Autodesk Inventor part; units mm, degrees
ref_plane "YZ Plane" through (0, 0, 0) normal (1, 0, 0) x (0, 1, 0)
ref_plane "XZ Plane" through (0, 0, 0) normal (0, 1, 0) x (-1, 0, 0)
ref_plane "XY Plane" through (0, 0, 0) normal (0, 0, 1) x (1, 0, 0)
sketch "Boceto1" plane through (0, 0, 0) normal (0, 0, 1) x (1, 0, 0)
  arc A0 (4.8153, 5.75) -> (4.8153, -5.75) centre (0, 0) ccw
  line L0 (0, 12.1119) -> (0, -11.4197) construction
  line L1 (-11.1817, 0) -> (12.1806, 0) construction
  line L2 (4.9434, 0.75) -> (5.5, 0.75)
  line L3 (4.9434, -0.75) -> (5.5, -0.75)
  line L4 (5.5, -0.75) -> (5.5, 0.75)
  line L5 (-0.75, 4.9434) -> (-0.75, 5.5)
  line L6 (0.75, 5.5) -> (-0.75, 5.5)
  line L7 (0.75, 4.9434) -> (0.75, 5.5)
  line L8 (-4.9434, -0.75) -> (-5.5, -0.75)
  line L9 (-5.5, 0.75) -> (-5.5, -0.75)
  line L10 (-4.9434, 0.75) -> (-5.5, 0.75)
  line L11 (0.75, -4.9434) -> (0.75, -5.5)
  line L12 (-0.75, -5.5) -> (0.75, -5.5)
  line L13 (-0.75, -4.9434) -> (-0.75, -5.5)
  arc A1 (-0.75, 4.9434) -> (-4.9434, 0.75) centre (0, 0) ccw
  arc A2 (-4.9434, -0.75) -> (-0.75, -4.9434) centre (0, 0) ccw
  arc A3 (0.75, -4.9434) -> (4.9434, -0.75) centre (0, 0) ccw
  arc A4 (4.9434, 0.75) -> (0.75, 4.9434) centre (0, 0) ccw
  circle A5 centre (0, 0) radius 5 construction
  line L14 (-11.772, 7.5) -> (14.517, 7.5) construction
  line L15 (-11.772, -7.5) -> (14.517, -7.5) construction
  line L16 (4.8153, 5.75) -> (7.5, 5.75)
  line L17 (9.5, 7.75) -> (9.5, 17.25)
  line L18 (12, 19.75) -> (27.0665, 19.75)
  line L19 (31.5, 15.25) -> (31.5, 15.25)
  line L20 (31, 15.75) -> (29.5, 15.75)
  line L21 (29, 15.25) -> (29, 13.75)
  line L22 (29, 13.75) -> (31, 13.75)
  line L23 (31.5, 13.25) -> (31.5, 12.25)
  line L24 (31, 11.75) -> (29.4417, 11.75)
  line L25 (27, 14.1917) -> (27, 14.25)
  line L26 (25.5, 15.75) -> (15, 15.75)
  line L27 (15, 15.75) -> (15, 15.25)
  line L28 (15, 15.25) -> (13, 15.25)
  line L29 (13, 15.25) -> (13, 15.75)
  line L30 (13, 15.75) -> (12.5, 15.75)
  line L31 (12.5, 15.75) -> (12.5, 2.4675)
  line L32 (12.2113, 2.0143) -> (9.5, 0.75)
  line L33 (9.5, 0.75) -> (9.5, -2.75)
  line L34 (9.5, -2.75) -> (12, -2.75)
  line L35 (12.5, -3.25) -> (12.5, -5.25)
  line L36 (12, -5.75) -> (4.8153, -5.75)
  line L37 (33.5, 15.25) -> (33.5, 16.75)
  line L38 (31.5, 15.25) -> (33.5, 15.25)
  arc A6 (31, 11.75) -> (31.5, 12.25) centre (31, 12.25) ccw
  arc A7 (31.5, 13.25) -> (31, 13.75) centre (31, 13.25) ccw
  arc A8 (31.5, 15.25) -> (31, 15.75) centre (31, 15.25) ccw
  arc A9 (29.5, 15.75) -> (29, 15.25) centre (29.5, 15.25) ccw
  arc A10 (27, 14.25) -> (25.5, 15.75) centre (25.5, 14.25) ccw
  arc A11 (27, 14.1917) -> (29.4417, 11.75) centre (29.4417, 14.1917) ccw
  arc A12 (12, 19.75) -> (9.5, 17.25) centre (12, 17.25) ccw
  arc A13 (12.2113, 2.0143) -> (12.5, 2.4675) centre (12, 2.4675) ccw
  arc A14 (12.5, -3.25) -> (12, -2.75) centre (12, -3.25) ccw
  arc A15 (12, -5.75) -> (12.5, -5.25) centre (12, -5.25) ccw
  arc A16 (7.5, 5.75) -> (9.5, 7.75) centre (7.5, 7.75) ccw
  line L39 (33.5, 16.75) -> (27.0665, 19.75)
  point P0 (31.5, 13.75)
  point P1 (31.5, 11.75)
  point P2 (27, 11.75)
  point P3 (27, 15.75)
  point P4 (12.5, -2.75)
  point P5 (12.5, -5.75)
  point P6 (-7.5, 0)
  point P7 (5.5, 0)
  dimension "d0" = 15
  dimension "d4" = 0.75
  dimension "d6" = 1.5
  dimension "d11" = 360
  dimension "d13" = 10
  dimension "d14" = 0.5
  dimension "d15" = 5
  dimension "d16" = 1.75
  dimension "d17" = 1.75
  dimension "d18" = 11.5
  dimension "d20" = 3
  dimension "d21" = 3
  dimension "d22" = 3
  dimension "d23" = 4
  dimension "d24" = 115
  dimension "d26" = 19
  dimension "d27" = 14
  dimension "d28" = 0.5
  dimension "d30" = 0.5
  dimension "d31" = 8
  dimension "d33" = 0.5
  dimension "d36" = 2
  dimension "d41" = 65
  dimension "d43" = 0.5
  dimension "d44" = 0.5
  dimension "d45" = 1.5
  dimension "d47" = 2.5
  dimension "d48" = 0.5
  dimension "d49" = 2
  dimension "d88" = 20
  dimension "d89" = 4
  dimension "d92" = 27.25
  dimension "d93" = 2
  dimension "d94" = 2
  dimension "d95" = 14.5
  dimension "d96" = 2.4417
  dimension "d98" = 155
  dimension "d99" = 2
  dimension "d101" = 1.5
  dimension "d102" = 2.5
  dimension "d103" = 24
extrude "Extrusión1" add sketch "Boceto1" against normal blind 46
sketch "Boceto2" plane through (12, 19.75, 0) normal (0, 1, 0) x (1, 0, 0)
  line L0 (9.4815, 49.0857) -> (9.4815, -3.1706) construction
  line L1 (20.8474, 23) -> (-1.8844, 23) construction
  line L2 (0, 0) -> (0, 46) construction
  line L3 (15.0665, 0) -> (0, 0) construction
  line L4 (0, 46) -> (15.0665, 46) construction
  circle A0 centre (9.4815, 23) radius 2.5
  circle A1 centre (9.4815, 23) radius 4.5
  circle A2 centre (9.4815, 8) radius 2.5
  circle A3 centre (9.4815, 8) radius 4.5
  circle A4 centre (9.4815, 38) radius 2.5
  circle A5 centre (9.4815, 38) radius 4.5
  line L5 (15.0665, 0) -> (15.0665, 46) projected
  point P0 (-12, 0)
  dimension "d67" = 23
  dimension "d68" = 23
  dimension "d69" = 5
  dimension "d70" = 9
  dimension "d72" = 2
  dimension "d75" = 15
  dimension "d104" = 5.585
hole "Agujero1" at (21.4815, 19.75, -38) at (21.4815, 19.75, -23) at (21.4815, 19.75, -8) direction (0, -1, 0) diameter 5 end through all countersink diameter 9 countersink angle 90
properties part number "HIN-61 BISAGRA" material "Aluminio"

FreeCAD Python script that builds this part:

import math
import FreeCAD as App
import Part
import Sketcher

V = App.Vector
Q = App.Units.Quantity

doc = App.newDocument("Part")
body = doc.addObject("PartDesign::Body", "Body")

# Sketch on XY plane
sketch1 = doc.addObject("Sketcher::SketchObject", "Sketch")
body.addObject(sketch1)
sketch1.AttachmentSupport = (doc.XY_Plane, [""])
sketch1.MapMode = "FlatFace"
sketch1.addGeometry([
    Part.LineSegment(V(7.5, 5.75, 0), V(4.8153, 5.75, 0)),  # 0
    Part.ArcOfCircle(Part.Circle(V(0, 0, 0), V(0, 0, 1), 7.499974), math.radians(50.05573), math.radians(309.94427)),  # 1
    Part.LineSegment(V(4.8153, -5.75, 0), V(12, -5.75, 0)),  # 2
    Part.ArcOfCircle(Part.Circle(V(12, -5.25, 0), V(0, 0, 1), 0.5), math.radians(-90), math.radians(0)),  # 3
    Part.LineSegment(V(12.5, -5.25, 0), V(12.5, -3.25, 0)),  # 4
    Part.ArcOfCircle(Part.Circle(V(12, -3.25, 0), V(0, 0, 1), 0.5), math.radians(0), math.radians(90)),  # 5
    Part.LineSegment(V(12, -2.75, 0), V(9.5, -2.75, 0)),  # 6
    Part.LineSegment(V(9.5, -2.75, 0), V(9.5, 0.75, 0)),  # 7
    Part.LineSegment(V(9.5, 0.75, 0), V(12.2113, 2.0143, 0)),  # 8
    Part.ArcOfCircle(Part.Circle(V(12, 2.4675, 0), V(0, 0, 1), 0.500038), math.radians(-65.003181), math.radians(0)),  # 9
    Part.LineSegment(V(12.5, 2.4675, 0), V(12.5, 15.75, 0)),  # 10
    Part.LineSegment(V(12.5, 15.75, 0), V(13, 15.75, 0)),  # 11
    Part.LineSegment(V(13, 15.75, 0), V(13, 15.25, 0)),  # 12
    Part.LineSegment(V(13, 15.25, 0), V(15, 15.25, 0)),  # 13
    Part.LineSegment(V(15, 15.25, 0), V(15, 15.75, 0)),  # 14
    Part.LineSegment(V(15, 15.75, 0), V(25.5, 15.75, 0)),  # 15
    Part.ArcOfCircle(Part.Circle(V(25.5, 14.25, 0), V(0, 0, 1), 1.5), math.radians(0), math.radians(90)),  # 16
    Part.LineSegment(V(27, 14.25, 0), V(27, 14.1917, 0)),  # 17
    Part.ArcOfCircle(Part.Circle(V(29.4417, 14.1917, 0), V(0, 0, 1), 2.4417), math.radians(180), math.radians(270)),  # 18
    Part.LineSegment(V(29.4417, 11.75, 0), V(31, 11.75, 0)),  # 19
    Part.ArcOfCircle(Part.Circle(V(31, 12.25, 0), V(0, 0, 1), 0.5), math.radians(-90), math.radians(0)),  # 20
    Part.LineSegment(V(31.5, 12.25, 0), V(31.5, 13.25, 0)),  # 21
    Part.ArcOfCircle(Part.Circle(V(31, 13.25, 0), V(0, 0, 1), 0.5), math.radians(0), math.radians(90)),  # 22
    Part.LineSegment(V(31, 13.75, 0), V(29, 13.75, 0)),  # 23
    Part.LineSegment(V(29, 13.75, 0), V(29, 15.25, 0)),  # 24
    Part.ArcOfCircle(Part.Circle(V(29.5, 15.25, 0), V(0, 0, 1), 0.5), math.radians(90), math.radians(180)),  # 25
    Part.LineSegment(V(29.5, 15.75, 0), V(31, 15.75, 0)),  # 26
    Part.ArcOfCircle(Part.Circle(V(31, 15.25, 0), V(0, 0, 1), 0.5), math.radians(0), math.radians(90)),  # 27
    Part.LineSegment(V(31.5, 15.25, 0), V(33.5, 15.25, 0)),  # 28
    Part.LineSegment(V(33.5, 15.25, 0), V(33.5, 16.75, 0)),  # 29
    Part.LineSegment(V(33.5, 16.75, 0), V(27.0665, 19.75, 0)),  # 30
    Part.LineSegment(V(27.0665, 19.75, 0), V(12, 19.75, 0)),  # 31
    Part.ArcOfCircle(Part.Circle(V(12, 17.25, 0), V(0, 0, 1), 2.5), math.radians(90), math.radians(180)),  # 32
    Part.LineSegment(V(9.5, 17.25, 0), V(9.5, 7.75, 0)),  # 33
    Part.ArcOfCircle(Part.Circle(V(7.5, 7.75, 0), V(0, 0, 1), 2), math.radians(-90), math.radians(0)),  # 34
    Part.ArcOfCircle(Part.Circle(V(0, 0, 0), V(0, 0, 1), 4.99997), math.radians(8.626978), math.radians(81.373022)),  # 35
    Part.LineSegment(V(4.9434, 0.75, 0), V(5.5, 0.75, 0)),  # 36
    Part.LineSegment(V(5.5, 0.75, 0), V(5.5, -0.75, 0)),  # 37
    Part.LineSegment(V(5.5, -0.75, 0), V(4.9434, -0.75, 0)),  # 38
    Part.ArcOfCircle(Part.Circle(V(0, 0, 0), V(0, 0, 1), 4.99997), math.radians(-81.373022), math.radians(-8.626978)),  # 39
    Part.LineSegment(V(0.75, -4.9434, 0), V(0.75, -5.5, 0)),  # 40
    Part.LineSegment(V(0.75, -5.5, 0), V(-0.75, -5.5, 0)),  # 41
    Part.LineSegment(V(-0.75, -5.5, 0), V(-0.75, -4.9434, 0)),  # 42
    Part.ArcOfCircle(Part.Circle(V(0, 0, 0), V(0, 0, 1), 4.99997), math.radians(-171.373022), math.radians(-98.626978)),  # 43
    Part.LineSegment(V(-4.9434, -0.75, 0), V(-5.5, -0.75, 0)),  # 44
    Part.LineSegment(V(-5.5, -0.75, 0), V(-5.5, 0.75, 0)),  # 45
    Part.LineSegment(V(-5.5, 0.75, 0), V(-4.9434, 0.75, 0)),  # 46
    Part.ArcOfCircle(Part.Circle(V(0, 0, 0), V(0, 0, 1), 4.99997), math.radians(98.626978), math.radians(171.373022)),  # 47
    Part.LineSegment(V(-0.75, 4.9434, 0), V(-0.75, 5.5, 0)),  # 48
    Part.LineSegment(V(-0.75, 5.5, 0), V(0.75, 5.5, 0)),  # 49
    Part.LineSegment(V(0.75, 5.5, 0), V(0.75, 4.9434, 0)),  # 50
], False)
sketch1.addConstraint([
    Sketcher.Constraint("Coincident", 0, 2, 1, 1),
    Sketcher.Constraint("Coincident", 1, 2, 2, 1),
    Sketcher.Constraint("Tangent", 2, 2, 3, 1),
    Sketcher.Constraint("Tangent", 3, 2, 4, 1),
    Sketcher.Constraint("Tangent", 4, 2, 5, 1),
    Sketcher.Constraint("Tangent", 5, 2, 6, 1),
    Sketcher.Constraint("Coincident", 6, 2, 7, 1),
    Sketcher.Constraint("Coincident", 7, 2, 8, 1),
    Sketcher.Constraint("Tangent", 8, 2, 9, 1),
    Sketcher.Constraint("Tangent", 9, 2, 10, 1),
    Sketcher.Constraint("Coincident", 10, 2, 11, 1),
    Sketcher.Constraint("Coincident", 11, 2, 12, 1),
    Sketcher.Constraint("Coincident", 12, 2, 13, 1),
    Sketcher.Constraint("Coincident", 13, 2, 14, 1),
    Sketcher.Constraint("Coincident", 14, 2, 15, 1),
    Sketcher.Constraint("Tangent", 15, 2, 16, 2),
    Sketcher.Constraint("Tangent", 16, 1, 17, 1),
    Sketcher.Constraint("Tangent", 17, 2, 18, 1),
    Sketcher.Constraint("Tangent", 18, 2, 19, 1),
    Sketcher.Constraint("Tangent", 19, 2, 20, 1),
    Sketcher.Constraint("Tangent", 20, 2, 21, 1),
    Sketcher.Constraint("Tangent", 21, 2, 22, 1),
    Sketcher.Constraint("Tangent", 22, 2, 23, 1),
    Sketcher.Constraint("Coincident", 23, 2, 24, 1),
    Sketcher.Constraint("Tangent", 24, 2, 25, 2),
    Sketcher.Constraint("Tangent", 25, 1, 26, 1),
    Sketcher.Constraint("Tangent", 26, 2, 27, 2),
    Sketcher.Constraint("Coincident", 27, 1, 28, 1),
    Sketcher.Constraint("Coincident", 28, 2, 29, 1),
    Sketcher.Constraint("Coincident", 29, 2, 30, 1),
    Sketcher.Constraint("Coincident", 30, 2, 31, 1),
    Sketcher.Constraint("Tangent", 31, 2, 32, 1),
    Sketcher.Constraint("Tangent", 32, 2, 33, 1),
    Sketcher.Constraint("Tangent", 33, 2, 34, 2),
    Sketcher.Constraint("Tangent", 34, 1, 0, 1),
    Sketcher.Constraint("Coincident", 35, 1, 36, 1),
    Sketcher.Constraint("Coincident", 36, 2, 37, 1),
    Sketcher.Constraint("Coincident", 37, 2, 38, 1),
    Sketcher.Constraint("Coincident", 38, 2, 39, 2),
    Sketcher.Constraint("Coincident", 39, 1, 40, 1),
    Sketcher.Constraint("Coincident", 40, 2, 41, 1),
    Sketcher.Constraint("Coincident", 41, 2, 42, 1),
    Sketcher.Constraint("Coincident", 42, 2, 43, 2),
    Sketcher.Constraint("Coincident", 43, 1, 44, 1),
    Sketcher.Constraint("Coincident", 44, 2, 45, 1),
    Sketcher.Constraint("Coincident", 45, 2, 46, 1),
    Sketcher.Constraint("Coincident", 46, 2, 47, 2),
    Sketcher.Constraint("Coincident", 47, 1, 48, 1),
    Sketcher.Constraint("Coincident", 48, 2, 49, 1),
    Sketcher.Constraint("Coincident", 49, 2, 50, 1),
    Sketcher.Constraint("Coincident", 50, 2, 35, 2),
    Sketcher.Constraint("Horizontal", 0),
    Sketcher.Constraint("Horizontal", 2),
    Sketcher.Constraint("Vertical", 4),
    Sketcher.Constraint("Horizontal", 6),
    Sketcher.Constraint("Vertical", 7),
    Sketcher.Constraint("Vertical", 10),
    Sketcher.Constraint("Horizontal", 11),
    Sketcher.Constraint("Vertical", 12),
    Sketcher.Constraint("Horizontal", 13),
    Sketcher.Constraint("Vertical", 14),
    Sketcher.Constraint("Horizontal", 15),
    Sketcher.Constraint("Vertical", 17),
    Sketcher.Constraint("Horizontal", 19),
    Sketcher.Constraint("Vertical", 21),
    Sketcher.Constraint("Horizontal", 23),
    Sketcher.Constraint("Vertical", 24),
    Sketcher.Constraint("Horizontal", 26),
    Sketcher.Constraint("Horizontal", 28),
    Sketcher.Constraint("Vertical", 29),
    Sketcher.Constraint("Horizontal", 31),
    Sketcher.Constraint("Vertical", 33),
    Sketcher.Constraint("Horizontal", 36),
    Sketcher.Constraint("Vertical", 37),
    Sketcher.Constraint("Horizontal", 38),
    Sketcher.Constraint("Vertical", 40),
    Sketcher.Constraint("Horizontal", 41),
    Sketcher.Constraint("Vertical", 42),
    Sketcher.Constraint("Horizontal", 44),
    Sketcher.Constraint("Vertical", 45),
    Sketcher.Constraint("Horizontal", 46),
    Sketcher.Constraint("Vertical", 48),
    Sketcher.Constraint("Horizontal", 49),
    Sketcher.Constraint("Vertical", 50),
    Sketcher.Constraint("Coincident", 1, 3, -1, 1),
    Sketcher.Constraint("Coincident", 35, 3, -1, 1),
    Sketcher.Constraint("Coincident", 39, 3, -1, 1),
    Sketcher.Constraint("Coincident", 43, 3, -1, 1),
    Sketcher.Constraint("Coincident", 47, 3, -1, 1),
    Sketcher.Constraint("Equal", 3, 5),
    Sketcher.Constraint("Equal", 5, 9),
    Sketcher.Constraint("Equal", 9, 20),
    Sketcher.Constraint("Equal", 20, 22),
    Sketcher.Constraint("Equal", 22, 25),
    Sketcher.Constraint("Equal", 25, 27),
    Sketcher.Constraint("Equal", 35, 39),
    Sketcher.Constraint("Equal", 39, 43),
    Sketcher.Constraint("Equal", 43, 47),
    Sketcher.Constraint("Symmetric", 36, 2, 44, 2, -1, 1),
    Sketcher.Constraint("Symmetric", 40, 2, 48, 2, -1, 1),
    Sketcher.Constraint("Horizontal", 27, 3, 12, 2),
    Sketcher.Constraint("Horizontal", 11, 2, 14, 2),
    Sketcher.Constraint("Horizontal", 15, 2, 25, 1),
    Sketcher.Constraint("Horizontal", 24, 2, 27, 1),
    Sketcher.Constraint("Horizontal", 7, 2, 35, 1),
    Sketcher.Constraint("Horizontal", 39, 1, 42, 2),
    Sketcher.Constraint("Horizontal", 38, 2, 43, 1),
    Sketcher.Constraint("Horizontal", 36, 2, 45, 2),
    Sketcher.Constraint("Horizontal", 47, 1, 50, 2),
    Sketcher.Constraint("Vertical", 5, 3, 9, 3),
    Sketcher.Constraint("Vertical", 22, 3, 27, 3),
    Sketcher.Constraint("Vertical", 9, 3, 32, 3),
    Sketcher.Constraint("Vertical", 0, 2, 1, 2),
    Sketcher.Constraint("Vertical", 7, 2, 32, 2),
    Sketcher.Constraint("Equal", 13, 23),
    Sketcher.Constraint("Equal", 23, 28),
    Sketcher.Constraint("Equal", 26, 41),
    Sketcher.Constraint("Equal", 28, 4),
    Sketcher.Constraint("Equal", 11, 12),
    Sketcher.Constraint("Equal", 49, 24),
    Sketcher.Constraint("Equal", 24, 29),
    Sketcher.Constraint("Equal", 29, 37),
    Sketcher.Constraint("Equal", 46, 40),
    Sketcher.Constraint("Radius", 34, Q("2 mm")),
    Sketcher.Constraint("Radius", 35, Q("5 mm")),
    Sketcher.Constraint("Radius", 1, Q("7.5 mm")),
    Sketcher.Constraint("Radius", 3, Q("0.5 mm")),
    Sketcher.Constraint("Radius", 16, Q("1.5 mm")),
    Sketcher.Constraint("Radius", 32, Q("2.5 mm")),
    Sketcher.Constraint("DistanceX", 13, 1, 13, 2, Q("2 mm")),
    Sketcher.Constraint("Angle", 30, Q("155 deg")),
    Sketcher.Constraint("DistanceX", -1, 1, 13, 2, Q("15 mm")),
    Sketcher.Constraint("Radius", 18, Q("2.4417 mm")),
    Sketcher.Constraint("DistanceY", 21, 1, 21, 2, Q("1 mm")),
    Sketcher.Constraint("Angle", 8, Q("25 deg")),
    Sketcher.Constraint("DistanceX", 15, 1, 15, 2, Q("10.5 mm")),
    Sketcher.Constraint("DistanceY", 7, 1, 7, 2, Q("3.5 mm")),
    Sketcher.Constraint("DistanceY", 33, 2, 33, 1, Q("9.5 mm")),
    Sketcher.Constraint("DistanceX", -1, 1, 20, 3, Q("31 mm")),
    Sketcher.Constraint("DistanceX", -1, 1, 36, 2, Q("5.5 mm")),
    Sketcher.Constraint("DistanceY", -1, 1, 16, 3, Q("14.25 mm")),
])
pad1 = doc.addObject("PartDesign::Pad", "Pad")
body.addObject(pad1)
pad1.Profile = sketch1
pad1.Length = 46
pad1.Reversed = True

# Sketch on XZ plane
sketch2 = doc.addObject("Sketcher::SketchObject", "Sketch001")
body.addObject(sketch2)
sketch2.AttachmentSupport = (doc.XZ_Plane, [""])
sketch2.MapMode = "FlatFace"
sketch2.AttachmentOffset = App.Placement(V(0, 0, -19.75), App.Rotation())
sketch2.addGeometry([
    Part.Circle(V(21.4815, -38, 0), V(0, 0, 1), 2.5),
    Part.Circle(V(21.4815, -23, 0), V(0, 0, 1), 2.5),
    Part.Circle(V(21.4815, -8, 0), V(0, 0, 1), 2.5),
], False)
sketch2.addConstraint([
    Sketcher.Constraint("Equal", 0, 1),
    Sketcher.Constraint("Equal", 1, 2),
    Sketcher.Constraint("Vertical", 0, 3, 1, 3),
    Sketcher.Constraint("Vertical", 1, 3, 2, 3),
    Sketcher.Constraint("Diameter", 0, Q("5 mm")),
    Sketcher.Constraint("DistanceY", 0, 3, -1, 1, Q("38 mm")),
    Sketcher.Constraint("DistanceY", 1, 3, -1, 1, Q("23 mm")),
    Sketcher.Constraint("DistanceY", 2, 3, -1, 1, Q("8 mm")),
    Sketcher.Constraint("DistanceX", -1, 1, 0, 3, Q("21.4815 mm")),
])
doc.recompute()
hole = doc.addObject("PartDesign::Hole", "Hole")
body.addObject(hole)
hole.Profile = sketch2
hole.ThreadType = "None"
hole.Diameter = 5
hole.DepthType = "ThroughAll"
hole.HoleCutType = "Countersink"
hole.HoleCutDiameter = 9
hole.HoleCutCountersinkAngle = 90
hole.Reversed = True

doc.recompute()
